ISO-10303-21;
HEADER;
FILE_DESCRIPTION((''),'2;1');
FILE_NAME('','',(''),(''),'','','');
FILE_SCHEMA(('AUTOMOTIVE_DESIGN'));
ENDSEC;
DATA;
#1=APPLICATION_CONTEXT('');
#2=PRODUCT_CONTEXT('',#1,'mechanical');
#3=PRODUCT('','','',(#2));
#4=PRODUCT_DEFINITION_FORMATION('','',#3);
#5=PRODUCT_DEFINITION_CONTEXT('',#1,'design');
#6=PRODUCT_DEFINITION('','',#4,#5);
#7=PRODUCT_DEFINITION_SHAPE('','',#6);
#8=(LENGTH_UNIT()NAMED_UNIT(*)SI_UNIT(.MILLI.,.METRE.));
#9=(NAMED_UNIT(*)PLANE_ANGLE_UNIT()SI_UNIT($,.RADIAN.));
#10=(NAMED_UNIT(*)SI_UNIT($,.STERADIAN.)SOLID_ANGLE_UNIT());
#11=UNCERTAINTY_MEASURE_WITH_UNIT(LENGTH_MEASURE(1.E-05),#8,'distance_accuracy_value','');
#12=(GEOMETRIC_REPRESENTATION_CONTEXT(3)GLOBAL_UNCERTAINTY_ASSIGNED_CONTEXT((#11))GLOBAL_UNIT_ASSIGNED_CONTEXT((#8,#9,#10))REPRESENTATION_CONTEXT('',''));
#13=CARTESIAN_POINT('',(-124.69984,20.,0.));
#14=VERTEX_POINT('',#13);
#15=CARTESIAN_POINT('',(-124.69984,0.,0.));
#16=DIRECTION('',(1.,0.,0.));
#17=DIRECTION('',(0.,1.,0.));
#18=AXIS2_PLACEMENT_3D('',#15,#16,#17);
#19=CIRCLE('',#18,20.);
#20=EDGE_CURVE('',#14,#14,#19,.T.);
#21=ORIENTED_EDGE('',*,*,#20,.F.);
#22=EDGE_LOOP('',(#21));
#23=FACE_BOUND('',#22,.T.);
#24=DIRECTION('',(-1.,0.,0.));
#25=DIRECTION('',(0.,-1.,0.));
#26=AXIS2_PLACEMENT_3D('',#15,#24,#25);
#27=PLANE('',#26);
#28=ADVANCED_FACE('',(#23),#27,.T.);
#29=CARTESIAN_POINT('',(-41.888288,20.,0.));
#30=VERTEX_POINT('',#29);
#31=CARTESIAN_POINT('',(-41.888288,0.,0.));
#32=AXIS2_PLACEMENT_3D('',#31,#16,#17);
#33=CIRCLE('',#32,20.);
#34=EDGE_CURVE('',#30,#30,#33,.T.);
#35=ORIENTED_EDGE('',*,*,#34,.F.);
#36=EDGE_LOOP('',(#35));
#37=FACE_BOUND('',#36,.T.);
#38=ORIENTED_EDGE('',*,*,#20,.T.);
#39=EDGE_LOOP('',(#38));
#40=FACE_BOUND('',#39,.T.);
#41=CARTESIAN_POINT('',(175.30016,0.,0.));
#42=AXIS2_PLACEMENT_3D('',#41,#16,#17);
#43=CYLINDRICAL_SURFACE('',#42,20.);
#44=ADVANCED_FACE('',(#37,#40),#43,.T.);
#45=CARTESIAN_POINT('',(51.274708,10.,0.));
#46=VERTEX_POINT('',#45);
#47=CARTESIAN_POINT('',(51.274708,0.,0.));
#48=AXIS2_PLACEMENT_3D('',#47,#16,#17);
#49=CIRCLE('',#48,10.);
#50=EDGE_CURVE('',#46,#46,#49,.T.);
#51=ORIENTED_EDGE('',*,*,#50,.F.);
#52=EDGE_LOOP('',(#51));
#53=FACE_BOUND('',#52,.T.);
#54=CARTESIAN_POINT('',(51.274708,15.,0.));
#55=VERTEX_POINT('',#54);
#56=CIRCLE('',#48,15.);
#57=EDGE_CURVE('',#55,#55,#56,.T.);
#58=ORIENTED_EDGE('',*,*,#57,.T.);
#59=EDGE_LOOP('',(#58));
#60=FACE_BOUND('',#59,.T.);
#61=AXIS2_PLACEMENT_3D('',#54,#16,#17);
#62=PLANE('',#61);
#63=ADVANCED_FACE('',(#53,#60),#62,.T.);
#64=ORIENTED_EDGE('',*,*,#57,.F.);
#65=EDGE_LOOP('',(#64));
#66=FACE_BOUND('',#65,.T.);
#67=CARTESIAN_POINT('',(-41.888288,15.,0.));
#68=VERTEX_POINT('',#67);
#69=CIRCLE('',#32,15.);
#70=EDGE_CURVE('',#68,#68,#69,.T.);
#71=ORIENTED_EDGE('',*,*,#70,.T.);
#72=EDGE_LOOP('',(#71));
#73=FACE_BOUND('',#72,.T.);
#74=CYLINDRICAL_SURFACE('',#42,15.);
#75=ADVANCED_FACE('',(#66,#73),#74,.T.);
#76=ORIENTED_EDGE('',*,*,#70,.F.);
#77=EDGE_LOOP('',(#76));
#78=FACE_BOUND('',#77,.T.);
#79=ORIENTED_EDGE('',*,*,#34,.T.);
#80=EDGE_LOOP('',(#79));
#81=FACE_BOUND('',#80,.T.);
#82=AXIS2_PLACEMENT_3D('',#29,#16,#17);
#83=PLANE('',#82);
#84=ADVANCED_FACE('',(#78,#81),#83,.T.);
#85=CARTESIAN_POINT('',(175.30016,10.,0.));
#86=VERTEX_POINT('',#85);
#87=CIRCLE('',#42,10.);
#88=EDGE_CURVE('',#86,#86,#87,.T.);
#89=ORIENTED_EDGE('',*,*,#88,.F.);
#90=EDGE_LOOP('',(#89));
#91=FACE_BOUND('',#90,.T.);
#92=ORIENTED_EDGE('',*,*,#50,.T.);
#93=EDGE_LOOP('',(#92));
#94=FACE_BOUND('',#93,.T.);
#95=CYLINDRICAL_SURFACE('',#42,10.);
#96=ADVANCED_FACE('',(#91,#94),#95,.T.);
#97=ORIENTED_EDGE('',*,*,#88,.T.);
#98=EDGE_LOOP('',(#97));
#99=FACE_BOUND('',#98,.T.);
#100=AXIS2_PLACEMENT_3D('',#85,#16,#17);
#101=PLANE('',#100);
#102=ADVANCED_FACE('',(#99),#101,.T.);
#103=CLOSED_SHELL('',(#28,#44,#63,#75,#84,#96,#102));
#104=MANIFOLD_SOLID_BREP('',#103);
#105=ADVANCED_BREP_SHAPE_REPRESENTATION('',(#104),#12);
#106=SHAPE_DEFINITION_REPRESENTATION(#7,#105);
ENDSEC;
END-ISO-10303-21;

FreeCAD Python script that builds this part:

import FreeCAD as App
import Part
import Sketcher


def add_polygon(sketch, points):
    """Adds a closed chain of lines whose ends are joined by coincident constraints."""
    first, n = sketch.GeometryCount, len(points)
    for a, b in zip(points, points[1:] + points[:1]):
        sketch.addGeometry(Part.LineSegment(App.Vector(*a, 0), App.Vector(*b, 0)), False)
    for i in range(n):
        sketch.addConstraint(Sketcher.Constraint("Coincident", first + i, 2, first + (i + 1) % n, 1))

doc = App.newDocument("Part")
body = doc.addObject("PartDesign::Body", "Body")

# Sketch on XY plane
sketch1 = body.newObject("Sketcher::SketchObject", "Sketch")
sketch1.AttachmentSupport = (doc.getObject("XY_Plane"), [""])
sketch1.MapMode = "FlatFace"
add_polygon(sketch1, [(-125, 20), (-125, 0), (175, 0), (175, 10), (51, 10), (51, 15), (-42, 15), (-42, 20)])  # lines 0-7
sketch1.addConstraint([
    Sketcher.Constraint("Vertical", 0),
    Sketcher.Constraint("Horizontal", 1),
    Sketcher.Constraint("Vertical", 2),
    Sketcher.Constraint("Horizontal", 3),
    Sketcher.Constraint("Vertical", 4),
    Sketcher.Constraint("Horizontal", 5),
    Sketcher.Constraint("Vertical", 6),
    Sketcher.Constraint("Horizontal", 7),
    Sketcher.Constraint("PointOnObject", 0, 2, -1),
    Sketcher.Constraint("Equal", 4, 6),
    Sketcher.Constraint("DistanceX", 1, 1, 1, 2, 300.0),
    Sketcher.Constraint("DistanceY", 0, 2, 0, 1, 20.0),
    Sketcher.Constraint("DistanceY", 2, 1, 2, 2, 10.0),
    Sketcher.Constraint("DistanceX", 7, 2, 7, 1, 82.811552),
    Sketcher.Constraint("DistanceX", 3, 2, 3, 1, 124.025453),
    Sketcher.Constraint("DistanceX", 0, 2, -1, 1, 124.69984),
])
revolution = body.newObject("PartDesign::Revolution", "Revolution")
revolution.Profile = sketch1
revolution.ReferenceAxis = (sketch1, ["H_Axis"])
revolution.Angle = 360

doc.recompute()
